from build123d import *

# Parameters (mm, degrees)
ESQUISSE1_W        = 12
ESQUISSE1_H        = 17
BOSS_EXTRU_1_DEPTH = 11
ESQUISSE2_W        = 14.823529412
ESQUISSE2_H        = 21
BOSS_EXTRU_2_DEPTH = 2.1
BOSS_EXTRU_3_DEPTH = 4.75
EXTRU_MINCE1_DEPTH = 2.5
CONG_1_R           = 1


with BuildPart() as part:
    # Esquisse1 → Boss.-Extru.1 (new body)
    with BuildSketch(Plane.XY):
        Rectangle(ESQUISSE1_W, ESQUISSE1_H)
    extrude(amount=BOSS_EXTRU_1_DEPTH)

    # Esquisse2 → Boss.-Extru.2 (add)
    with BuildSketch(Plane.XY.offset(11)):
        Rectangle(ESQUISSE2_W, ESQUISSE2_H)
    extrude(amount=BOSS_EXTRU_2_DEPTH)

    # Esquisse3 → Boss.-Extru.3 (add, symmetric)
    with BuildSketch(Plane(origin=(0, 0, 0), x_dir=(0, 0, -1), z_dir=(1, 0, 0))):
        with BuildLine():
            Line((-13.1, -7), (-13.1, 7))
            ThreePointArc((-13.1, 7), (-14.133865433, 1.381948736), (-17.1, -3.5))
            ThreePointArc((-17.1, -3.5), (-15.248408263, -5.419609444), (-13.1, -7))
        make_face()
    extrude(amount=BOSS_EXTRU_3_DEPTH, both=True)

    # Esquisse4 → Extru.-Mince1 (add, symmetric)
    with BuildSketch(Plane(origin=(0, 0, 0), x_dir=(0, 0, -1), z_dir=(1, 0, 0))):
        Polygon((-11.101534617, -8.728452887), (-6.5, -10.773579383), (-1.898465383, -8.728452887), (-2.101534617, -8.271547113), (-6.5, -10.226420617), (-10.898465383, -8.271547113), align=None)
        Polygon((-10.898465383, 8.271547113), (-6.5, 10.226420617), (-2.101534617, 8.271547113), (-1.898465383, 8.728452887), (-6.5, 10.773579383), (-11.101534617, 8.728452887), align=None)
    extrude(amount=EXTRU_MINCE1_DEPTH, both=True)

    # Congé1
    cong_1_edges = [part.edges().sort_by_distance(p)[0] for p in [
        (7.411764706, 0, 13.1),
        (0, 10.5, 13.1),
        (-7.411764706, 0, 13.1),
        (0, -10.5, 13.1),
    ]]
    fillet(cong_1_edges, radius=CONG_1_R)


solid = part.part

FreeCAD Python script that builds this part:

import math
import FreeCAD as App
import Part
import Sketcher
Q = App.Units.Quantity


def edges_at(feature, points):
    """Names of the edges that pass closest to the given points."""
    edges = feature.Shape.Edges
    near = lambda p: min(range(len(edges)), key=lambda i: edges[i].distToShape(Part.Vertex(*p))[0])
    return sorted({f"Edge{near(p) + 1}" for p in points})

doc = App.newDocument("Part")
params = doc.addObject("Spreadsheet::Sheet", "Params")
for row, (alias, value) in enumerate([
    ("sketch1_width", "12 mm"),
    ("sketch1_height", "17 mm"),
    ("pad1_length", "11 mm"),
    ("sketch2_height", "21 mm"),
    ("pad2_length", "2.1 mm"),
    ("sketch3_width", "14 mm"),
    ("pad3_length", "9.5 mm"),
    ("sketch4_length", "0.5 mm"),
    ("pad4_length", "5 mm"),
    ("fillet_radius", "1 mm"),
], start=1):
    params.set(f"A{row}", alias)
    params.set(f"B{row}", "=" + value)
    params.setAlias(f"B{row}", alias)

body = doc.addObject("PartDesign::Body", "Body")

# Sketch on XY plane
sketch1 = body.newObject("Sketcher::SketchObject", "Sketch")
sketch1.AttachmentSupport = (doc.getObject("XY_Plane"), [""])
sketch1.MapMode = "FlatFace"
sketch1.addGeometry([
    Part.LineSegment(App.Vector(-6, 8.5, 0), App.Vector(-6, -8.5, 0)),
    Part.LineSegment(App.Vector(-6, -8.5, 0), App.Vector(6, -8.5, 0)),
    Part.LineSegment(App.Vector(6, -8.5, 0), App.Vector(6, 8.5, 0)),
    Part.LineSegment(App.Vector(6, 8.5, 0), App.Vector(-6, 8.5, 0)),
], False)
sketch1.addConstraint([
    Sketcher.Constraint("Coincident", 0, 2, 1, 1),
    Sketcher.Constraint("Coincident", 1, 2, 2, 1),
    Sketcher.Constraint("Coincident", 2, 2, 3, 1),
    Sketcher.Constraint("Coincident", 3, 2, 0, 1),
    Sketcher.Constraint("Vertical", 0),
    Sketcher.Constraint("Horizontal", 1),
    Sketcher.Constraint("Vertical", 2),
    Sketcher.Constraint("Horizontal", 3),
    Sketcher.Constraint("Symmetric", 0, 2, 2, 2, -1, 1),
    Sketcher.Constraint("DistanceX", 1, 1, 1, 2, Q("12 mm")),
    Sketcher.Constraint("DistanceY", 0, 2, 0, 1, Q("17 mm")),
])
sketch1.setExpression("Constraints[9]", "Params.sketch1_width")
sketch1.setExpression("Constraints[10]", "Params.sketch1_height")
pad1 = body.newObject("PartDesign::Pad", "Pad")
pad1.Profile = sketch1
pad1.setExpression("Length", "Params.pad1_length")

# Sketch on XY plane
sketch2 = body.newObject("Sketcher::SketchObject", "Sketch001")
sketch2.AttachmentSupport = (doc.getObject("XY_Plane"), [""])
sketch2.MapMode = "FlatFace"
sketch2.AttachmentOffset = App.Placement(App.Vector(0, 0, 11), App.Rotation())
sketch2.addGeometry([
    Part.LineSegment(App.Vector(-7.411765, 10.5, 0), App.Vector(-7.411765, -10.5, 0)),
    Part.LineSegment(App.Vector(-7.411765, -10.5, 0), App.Vector(7.411765, -10.5, 0)),
    Part.LineSegment(App.Vector(7.411765, -10.5, 0), App.Vector(7.411765, 10.5, 0)),
    Part.LineSegment(App.Vector(7.411765, 10.5, 0), App.Vector(-7.411765, 10.5, 0)),
], False)
sketch2.addConstraint([
    Sketcher.Constraint("Coincident", 0, 2, 1, 1),
    Sketcher.Constraint("Coincident", 1, 2, 2, 1),
    Sketcher.Constraint("Coincident", 2, 2, 3, 1),
    Sketcher.Constraint("Coincident", 3, 2, 0, 1),
    Sketcher.Constraint("Vertical", 0),
    Sketcher.Constraint("Horizontal", 1),
    Sketcher.Constraint("Vertical", 2),
    Sketcher.Constraint("Horizontal", 3),
    Sketcher.Constraint("Symmetric", 0, 2, 2, 2, -1, 1),
    Sketcher.Constraint("DistanceY", 0, 2, 0, 1, Q("21 mm")),
    Sketcher.Constraint("DistanceX", 1, 1, 1, 2, Q("14.823529 mm")),
])
sketch2.setExpression("Constraints[9]", "Params.sketch2_height")
pad2 = body.newObject("PartDesign::Pad", "Pad001")
pad2.Profile = sketch2
pad2.setExpression("Length", "Params.pad2_length")

# Sketch on YZ plane
sketch3 = body.newObject("Sketcher::SketchObject", "Sketch002")
sketch3.AttachmentSupport = (doc.getObject("YZ_Plane"), [""])
sketch3.MapMode = "FlatFace"
sketch3.addGeometry([
    Part.LineSegment(App.Vector(-7, 13.1, 0), App.Vector(7, 13.1, 0)),
    Part.ArcOfCircle(Part.Circle(App.Vector(7, 28.88125, 0), App.Vector(0, 0, 1), 15.78125), math.radians(-131.708916), math.radians(-90)),
    Part.ArcOfCircle(Part.Circle(App.Vector(6.456992, 4.856382, 0), App.Vector(0, 0, 1), 15.78125), math.radians(129.119366), math.radians(148.508784)),
], False)
sketch3.addConstraint([
    Sketcher.Constraint("Tangent", 0, 2, 1, 2),
    Sketcher.Constraint("Coincident", 1, 1, 2, 1),
    Sketcher.Constraint("Coincident", 2, 2, 0, 1),
    Sketcher.Constraint("Horizontal", 0),
    Sketcher.Constraint("Equal", 1, 2),
    Sketcher.Constraint("DistanceX", 0, 1, 0, 2, Q("14 mm")),
    Sketcher.Constraint("DistanceX", -1, 1, 1, 3, Q("7 mm")),
    Sketcher.Constraint("DistanceY", 0, 2, 1, 1, Q("4 mm")),
    Sketcher.Constraint("DistanceY", -1, 1, 0, 2, Q("13.1 mm")),
    Sketcher.Constraint("DistanceX", 1, 1, -1, 1, Q("3.5 mm")),
])
sketch3.setExpression("Constraints[5]", "Params.sketch3_width")
pad3 = body.newObject("PartDesign::Pad", "Pad002")
pad3.Profile = sketch3
pad3.setExpression("Length", "Params.pad3_length")
pad3.Midplane = True

# Sketch on YZ plane
sketch4 = body.newObject("Sketcher::SketchObject", "Sketch003")
sketch4.AttachmentSupport = (doc.getObject("YZ_Plane"), [""])
sketch4.MapMode = "FlatFace"
sketch4.addGeometry([
    Part.LineSegment(App.Vector(-8.728453, 11.101535, 0), App.Vector(-10.773579, 6.5, 0)),  # 0
    Part.LineSegment(App.Vector(-10.773579, 6.5, 0), App.Vector(-8.728453, 1.898465, 0)),  # 1
    Part.LineSegment(App.Vector(-8.728453, 1.898465, 0), App.Vector(-8.271547, 2.101535, 0)),  # 2
    Part.LineSegment(App.Vector(-8.271547, 2.101535, 0), App.Vector(-10.226421, 6.5, 0)),  # 3
    Part.LineSegment(App.Vector(-10.226421, 6.5, 0), App.Vector(-8.271547, 10.898465, 0)),  # 4
    Part.LineSegment(App.Vector(-8.271547, 10.898465, 0), App.Vector(-8.728453, 11.101535, 0)),  # 5
    Part.LineSegment(App.Vector(8.271547, 10.898465, 0), App.Vector(10.226421, 6.5, 0)),  # 6
    Part.LineSegment(App.Vector(10.226421, 6.5, 0), App.Vector(8.271547, 2.101535, 0)),  # 7
    Part.LineSegment(App.Vector(8.271547, 2.101535, 0), App.Vector(8.728453, 1.898465, 0)),  # 8
    Part.LineSegment(App.Vector(8.728453, 1.898465, 0), App.Vector(10.773579, 6.5, 0)),  # 9
    Part.LineSegment(App.Vector(10.773579, 6.5, 0), App.Vector(8.728453, 11.101535, 0)),  # 10
    Part.LineSegment(App.Vector(8.728453, 11.101535, 0), App.Vector(8.271547, 10.898465, 0)),  # 11
], False)
sketch4.addConstraint([
    Sketcher.Constraint("Coincident", 0, 2, 1, 1),
    Sketcher.Constraint("Coincident", 1, 2, 2, 1),
    Sketcher.Constraint("Coincident", 2, 2, 3, 1),
    Sketcher.Constraint("Coincident", 3, 2, 4, 1),
    Sketcher.Constraint("Coincident", 4, 2, 5, 1),
    Sketcher.Constraint("Coincident", 5, 2, 0, 1),
    Sketcher.Constraint("Coincident", 6, 2, 7, 1),
    Sketcher.Constraint("Coincident", 7, 2, 8, 1),
    Sketcher.Constraint("Coincident", 8, 2, 9, 1),
    Sketcher.Constraint("Coincident", 9, 2, 10, 1),
    Sketcher.Constraint("Coincident", 10, 2, 11, 1),
    Sketcher.Constraint("Coincident", 11, 2, 6, 1),
    Sketcher.Constraint("Symmetric", 3, 2, 6, 2, -2),
    Sketcher.Constraint("Symmetric", 2, 2, 7, 2, -2),
    Sketcher.Constraint("Symmetric", 1, 2, 8, 2, -2),
    Sketcher.Constraint("Symmetric", 0, 2, 9, 2, -2),
    Sketcher.Constraint("Symmetric", 5, 2, 10, 2, -2),
    Sketcher.Constraint("Symmetric", 4, 2, 11, 2, -2),
    Sketcher.Constraint("Perpendicular", 1, 2),
    Sketcher.Constraint("Perpendicular", 2, 3),
    Sketcher.Constraint("Parallel", 0, 4),
    Sketcher.Constraint("Perpendicular", 4, 5),
    Sketcher.Constraint("Parallel", 3, 6),
    Sketcher.Constraint("Horizontal", 0, 2, 3, 2),
    Sketcher.Constraint("Vertical", 2, 2, 4, 2),
    Sketcher.Constraint("DistanceY", 1, 2, 4, 2, Q("9 mm")),
    Sketcher.Constraint("DistanceX", 1, 2, 7, 2, Q("17 mm")),
    Sketcher.Constraint("Distance", 2, Q("0.5 mm")),
    Sketcher.Constraint("DistanceY", -1, 1, 0, 2, Q("6.5 mm")),
    Sketcher.Constraint("Distance", 0, Q("5.03554 mm")),
])
sketch4.setExpression("Constraints[27]", "Params.sketch4_length")
pad4 = body.newObject("PartDesign::Pad", "Pad003")
pad4.Profile = sketch4
pad4.setExpression("Length", "Params.pad4_length")
pad4.Midplane = True
doc.recompute()

fillet = body.newObject("PartDesign::Fillet", "Fillet")
fillet.Base = (pad4, edges_at(pad4, [
    (7.412, 0, 13.1),
    (0, 10.5, 13.1),
    (-7.412, 0, 13.1),
    (0, -10.5, 13.1),
]))
fillet.setExpression("Radius", "Params.fillet_radius")

doc.recompute()
